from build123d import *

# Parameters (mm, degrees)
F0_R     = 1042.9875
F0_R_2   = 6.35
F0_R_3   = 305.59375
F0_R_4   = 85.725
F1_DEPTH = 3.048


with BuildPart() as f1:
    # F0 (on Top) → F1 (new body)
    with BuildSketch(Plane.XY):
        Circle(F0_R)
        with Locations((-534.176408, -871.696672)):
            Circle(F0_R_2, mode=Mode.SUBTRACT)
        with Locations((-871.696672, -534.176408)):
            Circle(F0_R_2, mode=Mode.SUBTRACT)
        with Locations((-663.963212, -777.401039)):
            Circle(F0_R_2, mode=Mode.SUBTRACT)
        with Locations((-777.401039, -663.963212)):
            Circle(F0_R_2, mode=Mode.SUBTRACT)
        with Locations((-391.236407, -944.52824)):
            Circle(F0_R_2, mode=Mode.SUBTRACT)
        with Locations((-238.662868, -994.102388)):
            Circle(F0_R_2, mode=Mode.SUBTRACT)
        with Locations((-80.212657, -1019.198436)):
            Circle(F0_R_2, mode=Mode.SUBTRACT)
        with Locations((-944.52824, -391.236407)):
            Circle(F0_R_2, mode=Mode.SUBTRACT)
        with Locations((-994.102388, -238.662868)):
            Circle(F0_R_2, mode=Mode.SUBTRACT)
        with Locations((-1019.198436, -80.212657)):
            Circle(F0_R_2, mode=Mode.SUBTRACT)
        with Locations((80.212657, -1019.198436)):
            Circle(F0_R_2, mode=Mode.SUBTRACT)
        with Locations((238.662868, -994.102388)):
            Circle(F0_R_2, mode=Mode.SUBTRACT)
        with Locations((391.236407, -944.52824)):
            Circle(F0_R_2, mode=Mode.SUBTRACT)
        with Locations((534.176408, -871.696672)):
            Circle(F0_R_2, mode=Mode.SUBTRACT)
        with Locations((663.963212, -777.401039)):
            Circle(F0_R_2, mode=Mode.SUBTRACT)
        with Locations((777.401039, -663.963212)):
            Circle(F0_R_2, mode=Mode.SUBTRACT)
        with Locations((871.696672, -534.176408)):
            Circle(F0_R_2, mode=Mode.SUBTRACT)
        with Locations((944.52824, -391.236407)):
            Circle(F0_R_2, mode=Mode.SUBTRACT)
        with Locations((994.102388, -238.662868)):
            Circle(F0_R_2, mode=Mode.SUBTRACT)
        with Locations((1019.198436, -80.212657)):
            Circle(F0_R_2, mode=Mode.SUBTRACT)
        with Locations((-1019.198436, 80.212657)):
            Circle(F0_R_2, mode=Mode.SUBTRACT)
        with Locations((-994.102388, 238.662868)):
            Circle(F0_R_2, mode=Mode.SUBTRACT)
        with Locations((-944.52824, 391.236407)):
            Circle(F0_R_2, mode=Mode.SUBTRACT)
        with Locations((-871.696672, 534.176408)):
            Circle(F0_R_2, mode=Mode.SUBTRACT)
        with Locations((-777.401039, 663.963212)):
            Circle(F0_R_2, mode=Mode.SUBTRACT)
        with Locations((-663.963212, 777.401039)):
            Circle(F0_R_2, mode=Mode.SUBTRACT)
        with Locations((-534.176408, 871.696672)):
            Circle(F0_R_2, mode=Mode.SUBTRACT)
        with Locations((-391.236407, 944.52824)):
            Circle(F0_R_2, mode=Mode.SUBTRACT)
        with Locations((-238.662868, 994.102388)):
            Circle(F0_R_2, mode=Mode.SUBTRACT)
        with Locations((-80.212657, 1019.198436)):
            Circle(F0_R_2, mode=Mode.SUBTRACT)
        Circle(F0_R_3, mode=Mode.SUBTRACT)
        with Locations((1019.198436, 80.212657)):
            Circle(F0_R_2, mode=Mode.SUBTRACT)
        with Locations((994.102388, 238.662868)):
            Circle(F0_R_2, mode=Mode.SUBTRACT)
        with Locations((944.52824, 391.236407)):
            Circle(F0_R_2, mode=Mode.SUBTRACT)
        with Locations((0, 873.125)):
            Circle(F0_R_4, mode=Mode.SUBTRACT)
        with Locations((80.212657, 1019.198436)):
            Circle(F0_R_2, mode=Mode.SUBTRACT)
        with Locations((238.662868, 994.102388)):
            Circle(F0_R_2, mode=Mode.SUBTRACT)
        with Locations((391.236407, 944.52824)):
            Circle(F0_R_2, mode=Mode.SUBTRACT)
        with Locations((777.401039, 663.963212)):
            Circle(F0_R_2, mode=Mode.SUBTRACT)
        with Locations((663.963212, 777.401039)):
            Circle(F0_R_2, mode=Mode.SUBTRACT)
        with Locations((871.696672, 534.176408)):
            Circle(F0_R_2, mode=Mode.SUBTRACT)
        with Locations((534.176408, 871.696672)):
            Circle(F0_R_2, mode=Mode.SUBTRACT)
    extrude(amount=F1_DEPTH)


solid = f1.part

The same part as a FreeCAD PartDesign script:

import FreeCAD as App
import Part
import Sketcher
Q = App.Units.Quantity

doc = App.newDocument("Part")
params = doc.addObject("Spreadsheet::Sheet", "Params")
for row, (alias, value) in enumerate([
    ("sketch1_diameter", "0.5 in"),
    ("sketch1_diameter2", "6.75 in"),
    ("sketch1_diameter3", "82.125 in"),
    ("sketch1_diameter4", "24.0625 in"),
    ("pad1_length", "0.12 in"),
], start=1):
    params.set(f"A{row}", alias)
    params.set(f"B{row}", "=" + value)
    params.setAlias(f"B{row}", alias)

body = doc.addObject("PartDesign::Body", "Body")

# Sketch on XY plane
sketch1 = body.newObject("Sketcher::SketchObject", "Sketch")
sketch1.AttachmentSupport = (doc.getObject("XY_Plane"), [""])
sketch1.MapMode = "FlatFace"
sketch1.addGeometry(Part.Circle(App.Vector(0, 0, 0), App.Vector(0, 0, 1), 1043), False)
sketch1.addGeometry(Part.Circle(App.Vector(-664, -777, 0), App.Vector(0, 0, 1), 6), False)
sketch1.addGeometry(Part.Circle(App.Vector(-534, -872, 0), App.Vector(0, 0, 1), 6), False)
sketch1.addGeometry(Part.Circle(App.Vector(-777, -664, 0), App.Vector(0, 0, 1), 6), False)
sketch1.addGeometry(Part.Circle(App.Vector(-872, -534, 0), App.Vector(0, 0, 1), 6), False)
sketch1.addGeometry(Part.Circle(App.Vector(-391, -945, 0), App.Vector(0, 0, 1), 6), False)
sketch1.addGeometry(Part.Circle(App.Vector(-239, -994, 0), App.Vector(0, 0, 1), 6), False)
sketch1.addGeometry(Part.Circle(App.Vector(-80, -1019, 0), App.Vector(0, 0, 1), 6), False)
sketch1.addGeometry(Part.Circle(App.Vector(-945, -391, 0), App.Vector(0, 0, 1), 6), False)
sketch1.addGeometry(Part.Circle(App.Vector(-994, -239, 0), App.Vector(0, 0, 1), 6), False)
sketch1.addGeometry(Part.Circle(App.Vector(-1019, -80, 0), App.Vector(0, 0, 1), 6), False)
sketch1.addGeometry(Part.Circle(App.Vector(80, -1019, 0), App.Vector(0, 0, 1), 6), False)
sketch1.addGeometry(Part.Circle(App.Vector(239, -994, 0), App.Vector(0, 0, 1), 6), False)
sketch1.addGeometry(Part.Circle(App.Vector(391, -945, 0), App.Vector(0, 0, 1), 6), False)
sketch1.addGeometry(Part.Circle(App.Vector(534, -872, 0), App.Vector(0, 0, 1), 6), False)
sketch1.addGeometry(Part.Circle(App.Vector(664, -777, 0), App.Vector(0, 0, 1), 6), False)
sketch1.addGeometry(Part.Circle(App.Vector(777, -664, 0), App.Vector(0, 0, 1), 6), False)
sketch1.addGeometry(Part.Circle(App.Vector(872, -534, 0), App.Vector(0, 0, 1), 6), False)
sketch1.addGeometry(Part.Circle(App.Vector(945, -391, 0), App.Vector(0, 0, 1), 6), False)
sketch1.addGeometry(Part.Circle(App.Vector(994, -239, 0), App.Vector(0, 0, 1), 6), False)
sketch1.addGeometry(Part.Circle(App.Vector(1019, -80, 0), App.Vector(0, 0, 1), 6), False)
sketch1.addGeometry(Part.Circle(App.Vector(-1019, 80, 0), App.Vector(0, 0, 1), 6), False)
sketch1.addGeometry(Part.Circle(App.Vector(-994, 239, 0), App.Vector(0, 0, 1), 6), False)
sketch1.addGeometry(Part.Circle(App.Vector(-945, 391, 0), App.Vector(0, 0, 1), 6), False)
sketch1.addGeometry(Part.Circle(App.Vector(-872, 534, 0), App.Vector(0, 0, 1), 6), False)
sketch1.addGeometry(Part.Circle(App.Vector(-777, 664, 0), App.Vector(0, 0, 1), 6), False)
sketch1.addGeometry(Part.Circle(App.Vector(-664, 777, 0), App.Vector(0, 0, 1), 6), False)
sketch1.addGeometry(Part.Circle(App.Vector(-534, 872, 0), App.Vector(0, 0, 1), 6), False)
sketch1.addGeometry(Part.Circle(App.Vector(-391, 945, 0), App.Vector(0, 0, 1), 6), False)
sketch1.addGeometry(Part.Circle(App.Vector(-239, 994, 0), App.Vector(0, 0, 1), 6), False)
sketch1.addGeometry(Part.Circle(App.Vector(-80, 1019, 0), App.Vector(0, 0, 1), 6), False)
sketch1.addGeometry(Part.Circle(App.Vector(0, 0, 0), App.Vector(0, 0, 1), 306), False)
sketch1.addGeometry(Part.Circle(App.Vector(1019, 80, 0), App.Vector(0, 0, 1), 6), False)
sketch1.addGeometry(Part.Circle(App.Vector(994, 239, 0), App.Vector(0, 0, 1), 6), False)
sketch1.addGeometry(Part.Circle(App.Vector(945, 391, 0), App.Vector(0, 0, 1), 6), False)
sketch1.addGeometry(Part.Circle(App.Vector(0, 873, 0), App.Vector(0, 0, 1), 86), False)
sketch1.addGeometry(Part.Circle(App.Vector(80, 1019, 0), App.Vector(0, 0, 1), 6), False)
sketch1.addGeometry(Part.Circle(App.Vector(239, 994, 0), App.Vector(0, 0, 1), 6), False)
sketch1.addGeometry(Part.Circle(App.Vector(391, 945, 0), App.Vector(0, 0, 1), 6), False)
sketch1.addGeometry(Part.Circle(App.Vector(872, 534, 0), App.Vector(0, 0, 1), 6), False)
sketch1.addGeometry(Part.Circle(App.Vector(777, 664, 0), App.Vector(0, 0, 1), 6), False)
sketch1.addGeometry(Part.Circle(App.Vector(534, 872, 0), App.Vector(0, 0, 1), 6), False)
sketch1.addGeometry(Part.Circle(App.Vector(664, 777, 0), App.Vector(0, 0, 1), 6), False)
sketch1.addConstraint(Sketcher.Constraint("Coincident", 0, 3, -1, 1))
sketch1.addConstraint(Sketcher.Constraint("Coincident", 31, 3, -1, 1))
sketch1.addConstraint(Sketcher.Constraint("Equal", 1, 2))
sketch1.addConstraint(Sketcher.Constraint("Equal", 2, 3))
sketch1.addConstraint(Sketcher.Constraint("Equal", 3, 4))
sketch1.addConstraint(Sketcher.Constraint("Equal", 4, 5))
sketch1.addConstraint(Sketcher.Constraint("Equal", 5, 6))
sketch1.addConstraint(Sketcher.Constraint("Equal", 6, 7))
sketch1.addConstraint(Sketcher.Constraint("Equal", 7, 8))
sketch1.addConstraint(Sketcher.Constraint("Equal", 8, 9))
sketch1.addConstraint(Sketcher.Constraint("Equal", 9, 10))
sketch1.addConstraint(Sketcher.Constraint("Equal", 10, 11))
sketch1.addConstraint(Sketcher.Constraint("Equal", 11, 12))
sketch1.addConstraint(Sketcher.Constraint("Equal", 12, 13))
sketch1.addConstraint(Sketcher.Constraint("Equal", 13, 14))
sketch1.addConstraint(Sketcher.Constraint("Equal", 14, 15))
sketch1.addConstraint(Sketcher.Constraint("Equal", 15, 16))
sketch1.addConstraint(Sketcher.Constraint("Equal", 16, 17))
sketch1.addConstraint(Sketcher.Constraint("Equal", 17, 18))
sketch1.addConstraint(Sketcher.Constraint("Equal", 18, 19))
sketch1.addConstraint(Sketcher.Constraint("Equal", 19, 20))
sketch1.addConstraint(Sketcher.Constraint("Equal", 20, 21))
sketch1.addConstraint(Sketcher.Constraint("Equal", 21, 22))
sketch1.addConstraint(Sketcher.Constraint("Equal", 22, 23))
sketch1.addConstraint(Sketcher.Constraint("Equal", 23, 24))
sketch1.addConstraint(Sketcher.Constraint("Equal", 24, 25))
sketch1.addConstraint(Sketcher.Constraint("Equal", 25, 26))
sketch1.addConstraint(Sketcher.Constraint("Equal", 26, 27))
sketch1.addConstraint(Sketcher.Constraint("Equal", 27, 28))
sketch1.addConstraint(Sketcher.Constraint("Equal", 28, 29))
sketch1.addConstraint(Sketcher.Constraint("Equal", 29, 30))
sketch1.addConstraint(Sketcher.Constraint("Equal", 30, 32))
sketch1.addConstraint(Sketcher.Constraint("Equal", 32, 33))
sketch1.addConstraint(Sketcher.Constraint("Equal", 33, 34))
sketch1.addConstraint(Sketcher.Constraint("Equal", 34, 36))
sketch1.addConstraint(Sketcher.Constraint("Equal", 36, 37))
sketch1.addConstraint(Sketcher.Constraint("Equal", 37, 38))
sketch1.addConstraint(Sketcher.Constraint("Equal", 38, 39))
sketch1.addConstraint(Sketcher.Constraint("Equal", 39, 40))
sketch1.addConstraint(Sketcher.Constraint("Equal", 40, 41))
sketch1.addConstraint(Sketcher.Constraint("Equal", 41, 42))
sketch1.addConstraint(Sketcher.Constraint("Symmetric", 20, 3, 21, 3, -1, 1))
sketch1.addConstraint(Sketcher.Constraint("Symmetric", 19, 3, 22, 3, -1, 1))
sketch1.addConstraint(Sketcher.Constraint("Symmetric", 18, 3, 23, 3, -1, 1))
sketch1.addConstraint(Sketcher.Constraint("Symmetric", 17, 3, 24, 3, -1, 1))
sketch1.addConstraint(Sketcher.Constraint("Symmetric", 16, 3, 25, 3, -1, 1))
sketch1.addConstraint(Sketcher.Constraint("Symmetric", 15, 3, 26, 3, -1, 1))
sketch1.addConstraint(Sketcher.Constraint("Symmetric", 14, 3, 27, 3, -1, 1))
sketch1.addConstraint(Sketcher.Constraint("Symmetric", 13, 3, 28, 3, -1, 1))
sketch1.addConstraint(Sketcher.Constraint("Symmetric", 12, 3, 29, 3, -1, 1))
sketch1.addConstraint(Sketcher.Constraint("Symmetric", 11, 3, 30, 3, -1, 1))
sketch1.addConstraint(Sketcher.Constraint("Symmetric", 10, 3, 32, 3, -1, 1))
sketch1.addConstraint(Sketcher.Constraint("Symmetric", 9, 3, 33, 3, -1, 1))
sketch1.addConstraint(Sketcher.Constraint("Symmetric", 8, 3, 34, 3, -1, 1))
sketch1.addConstraint(Sketcher.Constraint("Symmetric", 7, 3, 36, 3, -1, 1))
sketch1.addConstraint(Sketcher.Constraint("Symmetric", 6, 3, 37, 3, -1, 1))
sketch1.addConstraint(Sketcher.Constraint("Symmetric", 5, 3, 38, 3, -1, 1))
sketch1.addConstraint(Sketcher.Constraint("Symmetric", 4, 3, 39, 3, -1, 1))
sketch1.addConstraint(Sketcher.Constraint("Symmetric", 3, 3, 40, 3, -1, 1))
sketch1.addConstraint(Sketcher.Constraint("Symmetric", 2, 3, 41, 3, -1, 1))
sketch1.addConstraint(Sketcher.Constraint("Symmetric", 1, 3, 42, 3, -1, 1))
sketch1.addConstraint(Sketcher.Constraint("Symmetric", 7, 3, 11, 3, -2))
sketch1.addConstraint(Sketcher.Constraint("Symmetric", 6, 3, 12, 3, -2))
sketch1.addConstraint(Sketcher.Constraint("Symmetric", 5, 3, 13, 3, -2))
sketch1.addConstraint(Sketcher.Constraint("Symmetric", 2, 3, 14, 3, -2))
sketch1.addConstraint(Sketcher.Constraint("Symmetric", 1, 3, 15, 3, -2))
sketch1.addConstraint(Sketcher.Constraint("Symmetric", 3, 3, 16, 3, -2))
sketch1.addConstraint(Sketcher.Constraint("Symmetric", 4, 3, 17, 3, -2))
sketch1.addConstraint(Sketcher.Constraint("Symmetric", 8, 3, 18, 3, -2))
sketch1.addConstraint(Sketcher.Constraint("Symmetric", 9, 3, 19, 3, -2))
sketch1.addConstraint(Sketcher.Constraint("Symmetric", 10, 3, 20, 3, -2))
sketch1.addConstraint(Sketcher.Constraint("PointOnObject", 35, 3, -2))
sketch1.addConstraint(Sketcher.Constraint("Diameter", 1, Q("0.5 in")))
sketch1.addConstraint(Sketcher.Constraint("Diameter", 35, Q("6.75 in")))
sketch1.addConstraint(Sketcher.Constraint("Diameter", 0, Q("82.125 in")))
sketch1.addConstraint(Sketcher.Constraint("Diameter", 31, Q("24.0625 in")))
sketch1.addConstraint(Sketcher.Constraint("DistanceY", -1, 1, 35, 3, Q("34.375 in")))
sketch1.addConstraint(Sketcher.Constraint("DistanceX", 2, 3, 5, 3, 142.940001))
sketch1.addConstraint(Sketcher.Constraint("DistanceY", 5, 3, 1, 3, 167.127201))
sketch1.addConstraint(Sketcher.Constraint("DistanceY", 4, 3, 8, 3, 142.940001))
sketch1.addConstraint(Sketcher.Constraint("DistanceX", 8, 3, 3, 3, 167.127201))
sketch1.addConstraint(Sketcher.Constraint("DistanceX", 1, 3, -1, 1, 663.963212))
sketch1.addConstraint(Sketcher.Constraint("DistanceY", 1, 3, -1, 1, 777.401039))
sketch1.addConstraint(Sketcher.Constraint("DistanceX", 2, 3, -1, 1, 534.176408))
sketch1.addConstraint(Sketcher.Constraint("DistanceY", 2, 3, -1, 1, 871.696672))
sketch1.addConstraint(Sketcher.Constraint("DistanceX", 3, 3, -1, 1, 777.401039))
sketch1.addConstraint(Sketcher.Constraint("DistanceY", 3, 3, -1, 1, 663.963212))
sketch1.addConstraint(Sketcher.Constraint("DistanceX", 4, 3, -1, 1, 871.696672))
sketch1.addConstraint(Sketcher.Constraint("DistanceY", 4, 3, -1, 1, 534.176408))
sketch1.addConstraint(Sketcher.Constraint("DistanceX", 6, 3, -1, 1, 238.662868))
sketch1.addConstraint(Sketcher.Constraint("DistanceY", 6, 3, -1, 1, 994.102388))
sketch1.addConstraint(Sketcher.Constraint("DistanceX", 9, 3, -1, 1, 994.102388))
sketch1.addConstraint(Sketcher.Constraint("DistanceY", 9, 3, -1, 1, 238.662868))
sketch1.addConstraint(Sketcher.Constraint("DistanceX", 6, 3, 7, 3, 158.450211))
sketch1.addConstraint(Sketcher.Constraint("DistanceY", 9, 3, 10, 3, 158.450211))
sketch1.addConstraint(Sketcher.Constraint("DistanceY", 7, 3, -1, 1, 1019.198436))
sketch1.addConstraint(Sketcher.Constraint("DistanceX", 10, 3, -1, 1, 1019.198436))
sketch1.setExpression("Constraints[72]", "Params.sketch1_diameter")
sketch1.setExpression("Constraints[73]", "Params.sketch1_diameter2")
sketch1.setExpression("Constraints[74]", "Params.sketch1_diameter3")
sketch1.setExpression("Constraints[75]", "Params.sketch1_diameter4")
pad1 = body.newObject("PartDesign::Pad", "Pad")
pad1.Profile = sketch1
pad1.setExpression("Length", "Params.pad1_length")

doc.recompute()
